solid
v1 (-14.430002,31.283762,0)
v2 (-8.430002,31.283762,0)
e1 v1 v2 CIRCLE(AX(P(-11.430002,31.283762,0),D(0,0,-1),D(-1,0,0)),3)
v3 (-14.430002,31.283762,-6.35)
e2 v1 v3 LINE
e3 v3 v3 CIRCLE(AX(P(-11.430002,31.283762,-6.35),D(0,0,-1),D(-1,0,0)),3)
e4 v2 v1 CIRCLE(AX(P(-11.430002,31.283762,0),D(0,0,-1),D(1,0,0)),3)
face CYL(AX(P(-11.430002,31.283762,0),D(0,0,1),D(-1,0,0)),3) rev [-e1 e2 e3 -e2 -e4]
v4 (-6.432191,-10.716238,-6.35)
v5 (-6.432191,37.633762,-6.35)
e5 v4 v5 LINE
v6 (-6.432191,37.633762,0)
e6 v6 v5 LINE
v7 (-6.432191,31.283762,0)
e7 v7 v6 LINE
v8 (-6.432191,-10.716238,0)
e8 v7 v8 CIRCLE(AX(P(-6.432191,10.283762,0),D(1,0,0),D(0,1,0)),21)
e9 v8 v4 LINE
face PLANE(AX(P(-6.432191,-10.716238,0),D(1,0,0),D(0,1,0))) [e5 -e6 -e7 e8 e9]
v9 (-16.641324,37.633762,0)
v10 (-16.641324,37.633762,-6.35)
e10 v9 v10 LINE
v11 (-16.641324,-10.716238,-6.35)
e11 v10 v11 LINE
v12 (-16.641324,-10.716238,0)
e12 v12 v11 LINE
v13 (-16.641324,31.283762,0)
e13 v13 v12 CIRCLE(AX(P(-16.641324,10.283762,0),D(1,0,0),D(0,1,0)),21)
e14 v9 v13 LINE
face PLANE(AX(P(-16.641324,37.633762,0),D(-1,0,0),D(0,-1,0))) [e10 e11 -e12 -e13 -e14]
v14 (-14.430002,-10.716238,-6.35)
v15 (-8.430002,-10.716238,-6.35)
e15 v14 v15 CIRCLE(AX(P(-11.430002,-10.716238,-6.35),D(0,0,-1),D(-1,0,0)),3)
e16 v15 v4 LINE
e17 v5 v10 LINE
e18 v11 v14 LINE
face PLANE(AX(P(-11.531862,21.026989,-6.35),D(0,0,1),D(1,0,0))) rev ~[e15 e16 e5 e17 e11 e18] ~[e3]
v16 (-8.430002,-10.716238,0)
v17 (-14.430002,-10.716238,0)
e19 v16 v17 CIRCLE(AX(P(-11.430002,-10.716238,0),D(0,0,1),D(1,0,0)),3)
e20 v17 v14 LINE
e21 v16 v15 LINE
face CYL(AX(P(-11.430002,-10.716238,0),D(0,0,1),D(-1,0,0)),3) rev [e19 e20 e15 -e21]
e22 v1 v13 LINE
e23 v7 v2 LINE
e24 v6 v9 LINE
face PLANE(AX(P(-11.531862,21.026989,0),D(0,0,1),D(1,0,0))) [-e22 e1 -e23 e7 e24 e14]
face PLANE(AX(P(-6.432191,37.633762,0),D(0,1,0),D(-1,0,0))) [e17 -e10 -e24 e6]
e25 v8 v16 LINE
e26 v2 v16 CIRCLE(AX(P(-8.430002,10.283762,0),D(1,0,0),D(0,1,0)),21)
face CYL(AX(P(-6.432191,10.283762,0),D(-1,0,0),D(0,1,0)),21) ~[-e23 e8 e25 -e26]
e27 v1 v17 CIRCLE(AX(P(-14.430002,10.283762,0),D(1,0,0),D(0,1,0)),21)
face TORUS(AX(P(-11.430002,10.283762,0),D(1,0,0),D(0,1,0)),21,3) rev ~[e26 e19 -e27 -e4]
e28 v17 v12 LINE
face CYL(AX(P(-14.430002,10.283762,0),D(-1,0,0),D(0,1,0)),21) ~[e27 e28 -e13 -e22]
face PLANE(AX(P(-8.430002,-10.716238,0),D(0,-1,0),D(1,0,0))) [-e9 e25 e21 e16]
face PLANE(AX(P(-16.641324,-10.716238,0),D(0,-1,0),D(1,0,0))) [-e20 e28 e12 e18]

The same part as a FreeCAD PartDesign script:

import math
import FreeCAD as App
import Part
import Sketcher
Q = App.Units.Quantity

doc = App.newDocument("Part")
body = doc.addObject("PartDesign::Body", "Body")

# Sketch on XY plane
sketch1 = body.newObject("Sketcher::SketchObject", "Sketch")
sketch1.AttachmentSupport = (doc.getObject("XY_Plane"), [""])
sketch1.MapMode = "FlatFace"
sketch1.addGeometry(Part.LineSegment(App.Vector(-6.432191, 31.283762, 0), App.Vector(-8.430002, 31.283762, 0)), False)
sketch1.addGeometry(Part.ArcOfCircle(Part.Circle(App.Vector(-11.430002, 31.283762, 0), App.Vector(0, 0, 1), 3), math.radians(180), math.radians(360)), False)
sketch1.addGeometry(Part.LineSegment(App.Vector(-14.430002, 31.283762, 0), App.Vector(-16.641324, 31.283762, 0)), False)
sketch1.addGeometry(Part.LineSegment(App.Vector(-16.641324, 31.283762, 0), App.Vector(-16.641324, 10.283762, 0)), False)
sketch1.addGeometry(Part.LineSegment(App.Vector(-16.641324, 10.283762, 0), App.Vector(-6.432191, 10.283762, 0)), False)
sketch1.addGeometry(Part.LineSegment(App.Vector(-6.432191, 10.283762, 0), App.Vector(-6.432191, 31.283762, 0)), False)
sketch1.addGeometry(Part.LineSegment(App.Vector(-16.641324, 10.283762, 0), App.Vector(-6.432191, 10.283762, 0)), True)  # axis
sketch1.addConstraint(Sketcher.Constraint("Coincident", 0, 2, 1, 2))
sketch1.addConstraint(Sketcher.Constraint("Coincident", 1, 1, 2, 1))
sketch1.addConstraint(Sketcher.Constraint("Coincident", 2, 2, 3, 1))
sketch1.addConstraint(Sketcher.Constraint("Coincident", 3, 2, 4, 1))
sketch1.addConstraint(Sketcher.Constraint("Coincident", 4, 2, 5, 1))
sketch1.addConstraint(Sketcher.Constraint("Coincident", 5, 2, 0, 1))
sketch1.addConstraint(Sketcher.Constraint("Horizontal", 0))
sketch1.addConstraint(Sketcher.Constraint("Horizontal", 2))
sketch1.addConstraint(Sketcher.Constraint("Vertical", 3))
sketch1.addConstraint(Sketcher.Constraint("Horizontal", 4))
sketch1.addConstraint(Sketcher.Constraint("Vertical", 5))
sketch1.addConstraint(Sketcher.Constraint("Horizontal", 6))
sketch1.addConstraint(Sketcher.Constraint("Coincident", 6, 1, 3, 2))
sketch1.addConstraint(Sketcher.Constraint("Horizontal", 1, 3, 0, 2))
sketch1.addConstraint(Sketcher.Constraint("Horizontal", 0, 2, 1, 1))
sketch1.addConstraint(Sketcher.Constraint("Vertical", 5, 2, 6, 2))
sketch1.addConstraint(Sketcher.Constraint("Radius", 1, Q("3 mm")))
sketch1.addConstraint(Sketcher.Constraint("DistanceY", 3, 2, 3, 1, Q("21 mm")))
sketch1.addConstraint(Sketcher.Constraint("DistanceX", 1, 3, -1, 1, Q("11.430002 mm")))
sketch1.addConstraint(Sketcher.Constraint("DistanceX", 0, 2, 0, 1, Q("1.997811 mm")))
sketch1.addConstraint(Sketcher.Constraint("DistanceX", 2, 2, 2, 1, Q("2.211323 mm")))
sketch1.addConstraint(Sketcher.Constraint("DistanceY", -1, 1, 1, 3, Q("31.283762 mm")))
revolution = body.newObject("PartDesign::Revolution", "Revolution")
revolution.Profile = sketch1
revolution.ReferenceAxis = (sketch1, ["Axis0"])
revolution.Angle = 180

# Sketch on XY plane
sketch2 = body.newObject("Sketcher::SketchObject", "Sketch001")
sketch2.AttachmentSupport = (doc.getObject("XY_Plane"), [""])
sketch2.MapMode = "FlatFace"
sketch2.addGeometry(Part.LineSegment(App.Vector(-16.641324, -10.716238, 0), App.Vector(-14.430002, -10.716238, 0)), False)
sketch2.addGeometry(Part.ArcOfCircle(Part.Circle(App.Vector(-11.430002, -10.716238, 0), App.Vector(0, 0, 1), 3), math.radians(0), math.radians(180)), False)
sketch2.addGeometry(Part.LineSegment(App.Vector(-8.430002, -10.716238, 0), App.Vector(-6.432191, -10.716238, 0)), False)
sketch2.addGeometry(Part.LineSegment(App.Vector(-6.432191, -10.716238, 0), App.Vector(-6.432191, 37.633762, 0)), False)
sketch2.addGeometry(Part.LineSegment(App.Vector(-6.432191, 37.633762, 0), App.Vector(-16.641324, 37.633762, 0)), False)
sketch2.addGeometry(Part.LineSegment(App.Vector(-16.641324, 37.633762, 0), App.Vector(-16.641324, -10.716238, 0)), False)
sketch2.addGeometry(Part.Circle(App.Vector(-11.430002, 31.283762, 0), App.Vector(0, 0, 1), 3), False)
sketch2.addConstraint(Sketcher.Constraint("Coincident", 0, 2, 1, 2))
sketch2.addConstraint(Sketcher.Constraint("Coincident", 1, 1, 2, 1))
sketch2.addConstraint(Sketcher.Constraint("Coincident", 2, 2, 3, 1))
sketch2.addConstraint(Sketcher.Constraint("Coincident", 3, 2, 4, 1))
sketch2.addConstraint(Sketcher.Constraint("Coincident", 4, 2, 5, 1))
sketch2.addConstraint(Sketcher.Constraint("Coincident", 5, 2, 0, 1))
sketch2.addConstraint(Sketcher.Constraint("Horizontal", 0))
sketch2.addConstraint(Sketcher.Constraint("Horizontal", 2))
sketch2.addConstraint(Sketcher.Constraint("Vertical", 3))
sketch2.addConstraint(Sketcher.Constraint("Horizontal", 4))
sketch2.addConstraint(Sketcher.Constraint("Vertical", 5))
sketch2.addConstraint(Sketcher.Constraint("Equal", 1, 6))
sketch2.addConstraint(Sketcher.Constraint("Horizontal", 1, 3, 0, 2))
sketch2.addConstraint(Sketcher.Constraint("Horizontal", 0, 2, 1, 1))
sketch2.addConstraint(Sketcher.Constraint("Vertical", 1, 3, 6, 3))
sketch2.addConstraint(Sketcher.Constraint("Diameter", 6, Q("6 mm")))
sketch2.addConstraint(Sketcher.Constraint("DistanceY", 1, 3, 6, 3, Q("42 mm")))
sketch2.addConstraint(Sketcher.Constraint("DistanceY", 3, 1, 3, 2, Q("48.35 mm")))
sketch2.addConstraint(Sketcher.Constraint("DistanceX", 1, 3, -1, 1, Q("11.430002 mm")))
sketch2.addConstraint(Sketcher.Constraint("DistanceX", 2, 1, 2, 2, Q("1.997811 mm")))
sketch2.addConstraint(Sketcher.Constraint("DistanceX", 0, 1, 0, 2, Q("2.211323 mm")))
sketch2.addConstraint(Sketcher.Constraint("DistanceY", 1, 3, -1, 1, Q("10.716238 mm")))
pad1 = body.newObject("PartDesign::Pad", "Pad")
pad1.Profile = sketch2
pad1.Length = 6.35
pad1.Reversed = True

doc.recompute()
